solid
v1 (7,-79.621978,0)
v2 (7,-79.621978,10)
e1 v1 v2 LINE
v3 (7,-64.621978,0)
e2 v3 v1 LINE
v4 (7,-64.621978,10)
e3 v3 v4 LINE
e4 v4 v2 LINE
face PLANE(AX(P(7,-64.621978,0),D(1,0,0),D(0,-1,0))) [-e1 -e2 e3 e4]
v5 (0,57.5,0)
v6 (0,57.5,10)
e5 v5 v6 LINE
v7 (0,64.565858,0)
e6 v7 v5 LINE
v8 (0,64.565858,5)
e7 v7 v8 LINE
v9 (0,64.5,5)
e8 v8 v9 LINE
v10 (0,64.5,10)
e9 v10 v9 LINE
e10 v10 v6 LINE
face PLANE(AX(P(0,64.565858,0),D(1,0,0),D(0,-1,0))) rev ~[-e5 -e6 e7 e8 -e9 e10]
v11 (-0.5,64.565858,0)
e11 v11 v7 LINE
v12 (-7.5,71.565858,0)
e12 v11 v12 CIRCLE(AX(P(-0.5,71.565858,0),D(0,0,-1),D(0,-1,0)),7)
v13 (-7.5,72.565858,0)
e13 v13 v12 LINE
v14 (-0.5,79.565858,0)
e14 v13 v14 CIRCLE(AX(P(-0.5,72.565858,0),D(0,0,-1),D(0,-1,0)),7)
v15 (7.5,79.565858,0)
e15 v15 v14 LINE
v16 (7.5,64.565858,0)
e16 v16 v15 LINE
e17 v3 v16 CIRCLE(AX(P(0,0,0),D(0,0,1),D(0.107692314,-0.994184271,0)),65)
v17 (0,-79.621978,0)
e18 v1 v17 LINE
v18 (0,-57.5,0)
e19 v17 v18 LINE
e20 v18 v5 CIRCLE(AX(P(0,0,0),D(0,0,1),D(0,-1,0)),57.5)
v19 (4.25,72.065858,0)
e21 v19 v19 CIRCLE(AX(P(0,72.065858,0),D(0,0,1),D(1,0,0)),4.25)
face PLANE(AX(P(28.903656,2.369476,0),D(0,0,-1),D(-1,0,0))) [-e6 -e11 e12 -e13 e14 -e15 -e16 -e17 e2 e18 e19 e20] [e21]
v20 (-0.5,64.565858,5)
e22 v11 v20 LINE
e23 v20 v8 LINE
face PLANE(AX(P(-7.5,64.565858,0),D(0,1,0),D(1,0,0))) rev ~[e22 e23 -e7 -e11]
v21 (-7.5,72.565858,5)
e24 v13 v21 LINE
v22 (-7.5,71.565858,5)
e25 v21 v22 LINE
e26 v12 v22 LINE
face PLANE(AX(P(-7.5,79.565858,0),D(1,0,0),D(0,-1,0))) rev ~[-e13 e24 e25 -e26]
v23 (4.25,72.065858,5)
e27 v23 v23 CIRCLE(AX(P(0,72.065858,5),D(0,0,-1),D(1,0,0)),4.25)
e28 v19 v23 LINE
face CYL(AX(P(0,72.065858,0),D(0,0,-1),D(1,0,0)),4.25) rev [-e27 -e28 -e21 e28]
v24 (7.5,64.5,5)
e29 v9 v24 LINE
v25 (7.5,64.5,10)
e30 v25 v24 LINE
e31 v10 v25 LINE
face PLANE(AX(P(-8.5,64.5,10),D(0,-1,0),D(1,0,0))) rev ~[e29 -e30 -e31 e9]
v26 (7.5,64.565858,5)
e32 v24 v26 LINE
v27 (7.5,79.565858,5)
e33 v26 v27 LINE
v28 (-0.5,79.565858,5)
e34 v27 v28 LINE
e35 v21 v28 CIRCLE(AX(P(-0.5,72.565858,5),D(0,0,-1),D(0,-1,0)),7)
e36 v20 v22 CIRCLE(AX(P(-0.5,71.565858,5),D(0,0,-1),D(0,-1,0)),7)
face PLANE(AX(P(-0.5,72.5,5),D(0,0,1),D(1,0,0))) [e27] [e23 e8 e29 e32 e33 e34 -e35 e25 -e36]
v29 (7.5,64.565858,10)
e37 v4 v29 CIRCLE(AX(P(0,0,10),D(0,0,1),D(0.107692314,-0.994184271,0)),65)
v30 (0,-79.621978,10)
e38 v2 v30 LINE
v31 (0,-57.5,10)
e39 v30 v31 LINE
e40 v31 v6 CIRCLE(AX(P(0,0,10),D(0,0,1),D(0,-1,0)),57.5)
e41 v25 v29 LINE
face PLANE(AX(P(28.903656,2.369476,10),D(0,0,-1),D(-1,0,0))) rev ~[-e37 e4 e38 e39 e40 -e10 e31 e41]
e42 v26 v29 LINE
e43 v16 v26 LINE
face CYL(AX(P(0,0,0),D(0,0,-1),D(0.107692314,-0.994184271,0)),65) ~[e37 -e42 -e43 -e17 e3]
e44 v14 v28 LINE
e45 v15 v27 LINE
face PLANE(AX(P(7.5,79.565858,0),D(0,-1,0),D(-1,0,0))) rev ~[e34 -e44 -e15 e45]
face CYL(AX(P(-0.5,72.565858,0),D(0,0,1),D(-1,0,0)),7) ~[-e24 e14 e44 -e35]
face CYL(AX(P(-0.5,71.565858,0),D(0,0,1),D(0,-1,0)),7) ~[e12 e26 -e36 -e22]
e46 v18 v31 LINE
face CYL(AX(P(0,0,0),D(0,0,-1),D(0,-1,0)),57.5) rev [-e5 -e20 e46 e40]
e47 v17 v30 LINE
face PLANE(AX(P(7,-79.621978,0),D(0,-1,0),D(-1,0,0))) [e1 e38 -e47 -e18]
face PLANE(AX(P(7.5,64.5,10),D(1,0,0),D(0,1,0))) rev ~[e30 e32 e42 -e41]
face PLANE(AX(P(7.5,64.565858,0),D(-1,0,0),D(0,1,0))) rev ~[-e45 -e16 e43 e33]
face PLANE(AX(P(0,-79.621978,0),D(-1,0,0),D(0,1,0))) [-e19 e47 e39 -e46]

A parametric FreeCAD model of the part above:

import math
import FreeCAD as App
import Part
import Sketcher

V = App.Vector
Q = App.Units.Quantity


def edges_at(feature, points):
    """Names of the edges that pass closest to the given points."""
    edges = feature.Shape.Edges
    near = lambda p: min(range(len(edges)), key=lambda i: edges[i].distToShape(Part.Vertex(*p))[0])
    return sorted({f"Edge{near(p) + 1}" for p in points})

doc = App.newDocument("Part")
body = doc.addObject("PartDesign::Body", "Body")

sketch1 = body.newObject("Sketcher::SketchObject", "Sketch")
sketch1.AttachmentSupport = (doc.getObject("XY_Plane"), [""])
sketch1.MapMode = "FlatFace"
sketch1.addGeometry([
    Part.ArcOfCircle(Part.Circle(V(0, 0, 0), V(0, 0, 1), 57.5), math.radians(-90), math.radians(90)),
    Part.LineSegment(V(0, -57.5, 0), V(0, -79.621978, 0)),
    Part.LineSegment(V(0, -79.621978, 0), V(7, -79.621978, 0)),
    Part.LineSegment(V(7, -79.621978, 0), V(7, -64.621978, 0)),
    Part.ArcOfCircle(Part.Circle(V(0, 0, 0), V(0, 0, 1), 65), math.radians(-83.817695), math.radians(83.37419)),
    Part.LineSegment(V(7.5, 64.565858, 0), V(7.5, 79.565858, 0)),
    Part.LineSegment(V(7.5, 79.565858, 0), V(-7.5, 79.565858, 0)),
    Part.LineSegment(V(-7.5, 79.565858, 0), V(-7.5, 64.565858, 0)),
    Part.LineSegment(V(-7.5, 64.565858, 0), V(0, 64.565858, 0)),
    Part.LineSegment(V(0, 64.565858, 0), V(0, 57.5, 0)),
    Part.Circle(V(0, 72.065858, 0), V(0, 0, 1), 4.25),
], False)
sketch1.addConstraint([
    Sketcher.Constraint("Coincident", 0, 1, 1, 1),
    Sketcher.Constraint("Coincident", 1, 2, 2, 1),
    Sketcher.Constraint("Coincident", 2, 2, 3, 1),
    Sketcher.Constraint("Coincident", 3, 2, 4, 1),
    Sketcher.Constraint("Coincident", 4, 2, 5, 1),
    Sketcher.Constraint("Coincident", 5, 2, 6, 1),
    Sketcher.Constraint("Coincident", 6, 2, 7, 1),
    Sketcher.Constraint("Coincident", 7, 2, 8, 1),
    Sketcher.Constraint("Coincident", 8, 2, 9, 1),
    Sketcher.Constraint("Coincident", 9, 2, 0, 2),
    Sketcher.Constraint("Vertical", 1),
    Sketcher.Constraint("Horizontal", 2),
    Sketcher.Constraint("Vertical", 3),
    Sketcher.Constraint("Vertical", 5),
    Sketcher.Constraint("Horizontal", 6),
    Sketcher.Constraint("Vertical", 7),
    Sketcher.Constraint("Horizontal", 8),
    Sketcher.Constraint("Vertical", 9),
    Sketcher.Constraint("Coincident", 0, 3, -1, 1),
    Sketcher.Constraint("Coincident", 4, 3, -1, 1),
    Sketcher.Constraint("Symmetric", 4, 2, 7, 2, -2),
    Sketcher.Constraint("PointOnObject", 10, 3, -2),
    Sketcher.Constraint("PointOnObject", 0, 1, -2),
    Sketcher.Constraint("PointOnObject", 8, 2, -2),
    Sketcher.Constraint("Equal", 6, 3),
    Sketcher.Constraint("Equal", 3, 5),
    Sketcher.Constraint("Radius", 4, Q("65 mm")),
    Sketcher.Constraint("Diameter", 10, Q("8.5 mm")),
    Sketcher.Constraint("Radius", 0, Q("57.5 mm")),
    Sketcher.Constraint("DistanceX", 2, 1, 2, 2, Q("7 mm")),
    Sketcher.Constraint("DistanceX", 6, 2, 6, 1, Q("15 mm")),
    Sketcher.Constraint("DistanceY", 4, 2, 10, 3, Q("7.5 mm")),
])
pad1 = body.newObject("PartDesign::Pad", "Pad")
pad1.Profile = sketch1
pad1.Length = 10

sketch2 = body.newObject("Sketcher::SketchObject", "Sketch001")
sketch2.AttachmentSupport = (doc.getObject("XY_Plane"), [""])
sketch2.MapMode = "FlatFace"
sketch2.AttachmentOffset = App.Placement(V(0, 0, 10), App.Rotation())
sketch2.addGeometry([
    Part.LineSegment(V(-8.5, 80.5, 0), V(-8.5, 64.5, 0)),
    Part.LineSegment(V(-8.5, 64.5, 0), V(7.5, 64.5, 0)),
    Part.LineSegment(V(7.5, 64.5, 0), V(7.5, 80.5, 0)),
    Part.LineSegment(V(7.5, 80.5, 0), V(-8.5, 80.5, 0)),
], False)
sketch2.addConstraint([
    Sketcher.Constraint("Coincident", 0, 2, 1, 1),
    Sketcher.Constraint("Coincident", 1, 2, 2, 1),
    Sketcher.Constraint("Coincident", 2, 2, 3, 1),
    Sketcher.Constraint("Coincident", 3, 2, 0, 1),
    Sketcher.Constraint("Vertical", 0),
    Sketcher.Constraint("Horizontal", 1),
    Sketcher.Constraint("Vertical", 2),
    Sketcher.Constraint("Horizontal", 3),
    Sketcher.Constraint("Equal", 3, 0),
    Sketcher.Constraint("DistanceX", 1, 1, 1, 2, Q("16 mm")),
    Sketcher.Constraint("DistanceX", 0, 2, -1, 1, Q("8.5 mm")),
    Sketcher.Constraint("DistanceY", -1, 1, 0, 2, Q("64.5 mm")),
])
pocket1 = body.newObject("PartDesign::Pocket", "Pocket")
pocket1.Profile = sketch2
pocket1.Length = 5
doc.recompute()

fillet = body.newObject("PartDesign::Fillet", "Fillet")
fillet.Base = (pocket1, edges_at(pocket1, [(-7.5, 64.566, 2.5), (-7.5, 79.566, 2.5)]))
fillet.Radius = 7

doc.recompute()
